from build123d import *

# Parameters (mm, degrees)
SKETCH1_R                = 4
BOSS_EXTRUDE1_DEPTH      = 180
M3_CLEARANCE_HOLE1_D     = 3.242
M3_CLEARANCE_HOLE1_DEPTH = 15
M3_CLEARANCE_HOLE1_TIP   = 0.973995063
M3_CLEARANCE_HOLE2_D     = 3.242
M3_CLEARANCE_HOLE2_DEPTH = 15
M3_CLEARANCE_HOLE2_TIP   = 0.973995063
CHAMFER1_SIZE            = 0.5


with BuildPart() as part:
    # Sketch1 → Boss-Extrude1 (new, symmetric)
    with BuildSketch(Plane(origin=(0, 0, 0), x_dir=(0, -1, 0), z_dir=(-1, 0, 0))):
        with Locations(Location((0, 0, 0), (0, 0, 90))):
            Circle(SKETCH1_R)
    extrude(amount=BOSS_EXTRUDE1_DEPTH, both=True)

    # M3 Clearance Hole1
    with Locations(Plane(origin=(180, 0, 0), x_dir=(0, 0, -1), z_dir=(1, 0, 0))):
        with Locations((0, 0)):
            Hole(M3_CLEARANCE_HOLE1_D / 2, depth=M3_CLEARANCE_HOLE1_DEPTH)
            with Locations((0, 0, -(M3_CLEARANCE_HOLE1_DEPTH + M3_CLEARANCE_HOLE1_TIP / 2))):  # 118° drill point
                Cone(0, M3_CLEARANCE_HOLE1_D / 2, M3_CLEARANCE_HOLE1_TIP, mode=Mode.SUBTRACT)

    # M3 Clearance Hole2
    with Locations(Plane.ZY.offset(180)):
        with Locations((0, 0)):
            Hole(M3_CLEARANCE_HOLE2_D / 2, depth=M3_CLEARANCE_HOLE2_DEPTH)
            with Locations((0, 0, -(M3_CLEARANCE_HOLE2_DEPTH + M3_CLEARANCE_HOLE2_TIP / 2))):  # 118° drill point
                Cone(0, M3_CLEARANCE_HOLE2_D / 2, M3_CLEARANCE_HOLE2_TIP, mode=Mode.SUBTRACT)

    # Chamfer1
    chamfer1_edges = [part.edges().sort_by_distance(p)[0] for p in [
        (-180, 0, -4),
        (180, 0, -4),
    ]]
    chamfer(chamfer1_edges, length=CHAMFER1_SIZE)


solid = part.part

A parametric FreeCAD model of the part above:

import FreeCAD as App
import Part
import Sketcher


def edges_at(feature, points):
    """Names of the edges that pass closest to the given points."""
    edges = feature.Shape.Edges
    near = lambda p: min(range(len(edges)), key=lambda i: edges[i].distToShape(Part.Vertex(*p))[0])
    return sorted({f"Edge{near(p) + 1}" for p in points})

doc = App.newDocument("Part")
body = doc.addObject("PartDesign::Body", "Body")

sketch1 = body.newObject("Sketcher::SketchObject", "Sketch")
sketch1.AttachmentSupport = (doc.getObject("YZ_Plane"), [""])
sketch1.MapMode = "FlatFace"
sketch1.addGeometry(Part.Circle(App.Vector(0, 0, 0), App.Vector(0, 0, 1), 4), False)
sketch1.addConstraint([
    Sketcher.Constraint("Coincident", 0, 3, -1, 1),
    Sketcher.Constraint("Diameter", 0, 8.0),
])
pad1 = body.newObject("PartDesign::Pad", "Pad")
pad1.Profile = sketch1
pad1.Length = 360
pad1.Midplane = True

sketch2 = body.newObject("Sketcher::SketchObject", "Sketch001")
sketch2.AttachmentSupport = (doc.getObject("YZ_Plane"), [""])
sketch2.MapMode = "FlatFace"
sketch2.AttachmentOffset = App.Placement(App.Vector(0, 0, 180), App.Rotation())
sketch2.addGeometry(Part.Circle(App.Vector(0, 0, 0), App.Vector(0, 0, 1), 1.621), False)
sketch2.addConstraint([
    Sketcher.Constraint("Coincident", 0, 3, -1, 1),
    Sketcher.Constraint("Diameter", 0, 3.242),
])
doc.recompute()
hole = body.newObject("PartDesign::Hole", "Hole")
hole.Profile = sketch2
hole.ThreadType = "None"
hole.Diameter = 3.242
hole.DepthType = "Dimension"
hole.Depth = 15
hole.DrillPoint = "Angled"
hole.DrillPointAngle = 118

sketch3 = body.newObject("Sketcher::SketchObject", "Sketch002")
sketch3.AttachmentSupport = (doc.getObject("YZ_Plane"), [""])
sketch3.MapMode = "FlatFace"
sketch3.AttachmentOffset = App.Placement(App.Vector(0, 0, -180), App.Rotation())
sketch3.addGeometry(Part.Circle(App.Vector(0, 0, 0), App.Vector(0, 0, 1), 1.621), False)
sketch3.addConstraint([
    Sketcher.Constraint("Coincident", 0, 3, -1, 1),
    Sketcher.Constraint("Diameter", 0, 3.242),
])
doc.recompute()
hole2 = body.newObject("PartDesign::Hole", "Hole001")
hole2.Profile = sketch3
hole2.ThreadType = "None"
hole2.Diameter = 3.242
hole2.DepthType = "Dimension"
hole2.Depth = 15
hole2.DrillPoint = "Angled"
hole2.DrillPointAngle = 118
hole2.Reversed = True
doc.recompute()

chamfer = body.newObject("PartDesign::Chamfer", "Chamfer")
chamfer.Base = (hole2, edges_at(hole2, [(-180, 0, -4), (180, 0, -4)]))
chamfer.Size = 0.5

doc.recompute()
